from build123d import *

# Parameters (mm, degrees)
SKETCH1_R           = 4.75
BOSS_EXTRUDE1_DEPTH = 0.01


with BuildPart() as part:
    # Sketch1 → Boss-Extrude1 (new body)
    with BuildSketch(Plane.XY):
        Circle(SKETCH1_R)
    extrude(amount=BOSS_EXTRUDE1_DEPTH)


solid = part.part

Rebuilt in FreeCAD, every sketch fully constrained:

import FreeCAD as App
import Part
import Sketcher
from FreeCAD import Vector

doc = App.newDocument("Part")
body = doc.addObject("PartDesign::Body", "Body")

# Sketch on XY plane
sketch1 = body.newObject("Sketcher::SketchObject", "Sketch")
sketch1.AttachmentSupport = (doc.getObject("XY_Plane"), [""])
sketch1.MapMode = "FlatFace"
sketch1.addGeometry(Part.Circle(Vector(0, 0, 0), Vector(0, 0, 1), 4.8), False)
sketch1.addConstraint([
    Sketcher.Constraint("Coincident", 0, 3, -1, 1),
    Sketcher.Constraint("Diameter", 0, 9.5),
])
pad1 = body.newObject("PartDesign::Pad", "Pad")
pad1.Profile = sketch1
pad1.Length = 0.01

doc.recompute()
